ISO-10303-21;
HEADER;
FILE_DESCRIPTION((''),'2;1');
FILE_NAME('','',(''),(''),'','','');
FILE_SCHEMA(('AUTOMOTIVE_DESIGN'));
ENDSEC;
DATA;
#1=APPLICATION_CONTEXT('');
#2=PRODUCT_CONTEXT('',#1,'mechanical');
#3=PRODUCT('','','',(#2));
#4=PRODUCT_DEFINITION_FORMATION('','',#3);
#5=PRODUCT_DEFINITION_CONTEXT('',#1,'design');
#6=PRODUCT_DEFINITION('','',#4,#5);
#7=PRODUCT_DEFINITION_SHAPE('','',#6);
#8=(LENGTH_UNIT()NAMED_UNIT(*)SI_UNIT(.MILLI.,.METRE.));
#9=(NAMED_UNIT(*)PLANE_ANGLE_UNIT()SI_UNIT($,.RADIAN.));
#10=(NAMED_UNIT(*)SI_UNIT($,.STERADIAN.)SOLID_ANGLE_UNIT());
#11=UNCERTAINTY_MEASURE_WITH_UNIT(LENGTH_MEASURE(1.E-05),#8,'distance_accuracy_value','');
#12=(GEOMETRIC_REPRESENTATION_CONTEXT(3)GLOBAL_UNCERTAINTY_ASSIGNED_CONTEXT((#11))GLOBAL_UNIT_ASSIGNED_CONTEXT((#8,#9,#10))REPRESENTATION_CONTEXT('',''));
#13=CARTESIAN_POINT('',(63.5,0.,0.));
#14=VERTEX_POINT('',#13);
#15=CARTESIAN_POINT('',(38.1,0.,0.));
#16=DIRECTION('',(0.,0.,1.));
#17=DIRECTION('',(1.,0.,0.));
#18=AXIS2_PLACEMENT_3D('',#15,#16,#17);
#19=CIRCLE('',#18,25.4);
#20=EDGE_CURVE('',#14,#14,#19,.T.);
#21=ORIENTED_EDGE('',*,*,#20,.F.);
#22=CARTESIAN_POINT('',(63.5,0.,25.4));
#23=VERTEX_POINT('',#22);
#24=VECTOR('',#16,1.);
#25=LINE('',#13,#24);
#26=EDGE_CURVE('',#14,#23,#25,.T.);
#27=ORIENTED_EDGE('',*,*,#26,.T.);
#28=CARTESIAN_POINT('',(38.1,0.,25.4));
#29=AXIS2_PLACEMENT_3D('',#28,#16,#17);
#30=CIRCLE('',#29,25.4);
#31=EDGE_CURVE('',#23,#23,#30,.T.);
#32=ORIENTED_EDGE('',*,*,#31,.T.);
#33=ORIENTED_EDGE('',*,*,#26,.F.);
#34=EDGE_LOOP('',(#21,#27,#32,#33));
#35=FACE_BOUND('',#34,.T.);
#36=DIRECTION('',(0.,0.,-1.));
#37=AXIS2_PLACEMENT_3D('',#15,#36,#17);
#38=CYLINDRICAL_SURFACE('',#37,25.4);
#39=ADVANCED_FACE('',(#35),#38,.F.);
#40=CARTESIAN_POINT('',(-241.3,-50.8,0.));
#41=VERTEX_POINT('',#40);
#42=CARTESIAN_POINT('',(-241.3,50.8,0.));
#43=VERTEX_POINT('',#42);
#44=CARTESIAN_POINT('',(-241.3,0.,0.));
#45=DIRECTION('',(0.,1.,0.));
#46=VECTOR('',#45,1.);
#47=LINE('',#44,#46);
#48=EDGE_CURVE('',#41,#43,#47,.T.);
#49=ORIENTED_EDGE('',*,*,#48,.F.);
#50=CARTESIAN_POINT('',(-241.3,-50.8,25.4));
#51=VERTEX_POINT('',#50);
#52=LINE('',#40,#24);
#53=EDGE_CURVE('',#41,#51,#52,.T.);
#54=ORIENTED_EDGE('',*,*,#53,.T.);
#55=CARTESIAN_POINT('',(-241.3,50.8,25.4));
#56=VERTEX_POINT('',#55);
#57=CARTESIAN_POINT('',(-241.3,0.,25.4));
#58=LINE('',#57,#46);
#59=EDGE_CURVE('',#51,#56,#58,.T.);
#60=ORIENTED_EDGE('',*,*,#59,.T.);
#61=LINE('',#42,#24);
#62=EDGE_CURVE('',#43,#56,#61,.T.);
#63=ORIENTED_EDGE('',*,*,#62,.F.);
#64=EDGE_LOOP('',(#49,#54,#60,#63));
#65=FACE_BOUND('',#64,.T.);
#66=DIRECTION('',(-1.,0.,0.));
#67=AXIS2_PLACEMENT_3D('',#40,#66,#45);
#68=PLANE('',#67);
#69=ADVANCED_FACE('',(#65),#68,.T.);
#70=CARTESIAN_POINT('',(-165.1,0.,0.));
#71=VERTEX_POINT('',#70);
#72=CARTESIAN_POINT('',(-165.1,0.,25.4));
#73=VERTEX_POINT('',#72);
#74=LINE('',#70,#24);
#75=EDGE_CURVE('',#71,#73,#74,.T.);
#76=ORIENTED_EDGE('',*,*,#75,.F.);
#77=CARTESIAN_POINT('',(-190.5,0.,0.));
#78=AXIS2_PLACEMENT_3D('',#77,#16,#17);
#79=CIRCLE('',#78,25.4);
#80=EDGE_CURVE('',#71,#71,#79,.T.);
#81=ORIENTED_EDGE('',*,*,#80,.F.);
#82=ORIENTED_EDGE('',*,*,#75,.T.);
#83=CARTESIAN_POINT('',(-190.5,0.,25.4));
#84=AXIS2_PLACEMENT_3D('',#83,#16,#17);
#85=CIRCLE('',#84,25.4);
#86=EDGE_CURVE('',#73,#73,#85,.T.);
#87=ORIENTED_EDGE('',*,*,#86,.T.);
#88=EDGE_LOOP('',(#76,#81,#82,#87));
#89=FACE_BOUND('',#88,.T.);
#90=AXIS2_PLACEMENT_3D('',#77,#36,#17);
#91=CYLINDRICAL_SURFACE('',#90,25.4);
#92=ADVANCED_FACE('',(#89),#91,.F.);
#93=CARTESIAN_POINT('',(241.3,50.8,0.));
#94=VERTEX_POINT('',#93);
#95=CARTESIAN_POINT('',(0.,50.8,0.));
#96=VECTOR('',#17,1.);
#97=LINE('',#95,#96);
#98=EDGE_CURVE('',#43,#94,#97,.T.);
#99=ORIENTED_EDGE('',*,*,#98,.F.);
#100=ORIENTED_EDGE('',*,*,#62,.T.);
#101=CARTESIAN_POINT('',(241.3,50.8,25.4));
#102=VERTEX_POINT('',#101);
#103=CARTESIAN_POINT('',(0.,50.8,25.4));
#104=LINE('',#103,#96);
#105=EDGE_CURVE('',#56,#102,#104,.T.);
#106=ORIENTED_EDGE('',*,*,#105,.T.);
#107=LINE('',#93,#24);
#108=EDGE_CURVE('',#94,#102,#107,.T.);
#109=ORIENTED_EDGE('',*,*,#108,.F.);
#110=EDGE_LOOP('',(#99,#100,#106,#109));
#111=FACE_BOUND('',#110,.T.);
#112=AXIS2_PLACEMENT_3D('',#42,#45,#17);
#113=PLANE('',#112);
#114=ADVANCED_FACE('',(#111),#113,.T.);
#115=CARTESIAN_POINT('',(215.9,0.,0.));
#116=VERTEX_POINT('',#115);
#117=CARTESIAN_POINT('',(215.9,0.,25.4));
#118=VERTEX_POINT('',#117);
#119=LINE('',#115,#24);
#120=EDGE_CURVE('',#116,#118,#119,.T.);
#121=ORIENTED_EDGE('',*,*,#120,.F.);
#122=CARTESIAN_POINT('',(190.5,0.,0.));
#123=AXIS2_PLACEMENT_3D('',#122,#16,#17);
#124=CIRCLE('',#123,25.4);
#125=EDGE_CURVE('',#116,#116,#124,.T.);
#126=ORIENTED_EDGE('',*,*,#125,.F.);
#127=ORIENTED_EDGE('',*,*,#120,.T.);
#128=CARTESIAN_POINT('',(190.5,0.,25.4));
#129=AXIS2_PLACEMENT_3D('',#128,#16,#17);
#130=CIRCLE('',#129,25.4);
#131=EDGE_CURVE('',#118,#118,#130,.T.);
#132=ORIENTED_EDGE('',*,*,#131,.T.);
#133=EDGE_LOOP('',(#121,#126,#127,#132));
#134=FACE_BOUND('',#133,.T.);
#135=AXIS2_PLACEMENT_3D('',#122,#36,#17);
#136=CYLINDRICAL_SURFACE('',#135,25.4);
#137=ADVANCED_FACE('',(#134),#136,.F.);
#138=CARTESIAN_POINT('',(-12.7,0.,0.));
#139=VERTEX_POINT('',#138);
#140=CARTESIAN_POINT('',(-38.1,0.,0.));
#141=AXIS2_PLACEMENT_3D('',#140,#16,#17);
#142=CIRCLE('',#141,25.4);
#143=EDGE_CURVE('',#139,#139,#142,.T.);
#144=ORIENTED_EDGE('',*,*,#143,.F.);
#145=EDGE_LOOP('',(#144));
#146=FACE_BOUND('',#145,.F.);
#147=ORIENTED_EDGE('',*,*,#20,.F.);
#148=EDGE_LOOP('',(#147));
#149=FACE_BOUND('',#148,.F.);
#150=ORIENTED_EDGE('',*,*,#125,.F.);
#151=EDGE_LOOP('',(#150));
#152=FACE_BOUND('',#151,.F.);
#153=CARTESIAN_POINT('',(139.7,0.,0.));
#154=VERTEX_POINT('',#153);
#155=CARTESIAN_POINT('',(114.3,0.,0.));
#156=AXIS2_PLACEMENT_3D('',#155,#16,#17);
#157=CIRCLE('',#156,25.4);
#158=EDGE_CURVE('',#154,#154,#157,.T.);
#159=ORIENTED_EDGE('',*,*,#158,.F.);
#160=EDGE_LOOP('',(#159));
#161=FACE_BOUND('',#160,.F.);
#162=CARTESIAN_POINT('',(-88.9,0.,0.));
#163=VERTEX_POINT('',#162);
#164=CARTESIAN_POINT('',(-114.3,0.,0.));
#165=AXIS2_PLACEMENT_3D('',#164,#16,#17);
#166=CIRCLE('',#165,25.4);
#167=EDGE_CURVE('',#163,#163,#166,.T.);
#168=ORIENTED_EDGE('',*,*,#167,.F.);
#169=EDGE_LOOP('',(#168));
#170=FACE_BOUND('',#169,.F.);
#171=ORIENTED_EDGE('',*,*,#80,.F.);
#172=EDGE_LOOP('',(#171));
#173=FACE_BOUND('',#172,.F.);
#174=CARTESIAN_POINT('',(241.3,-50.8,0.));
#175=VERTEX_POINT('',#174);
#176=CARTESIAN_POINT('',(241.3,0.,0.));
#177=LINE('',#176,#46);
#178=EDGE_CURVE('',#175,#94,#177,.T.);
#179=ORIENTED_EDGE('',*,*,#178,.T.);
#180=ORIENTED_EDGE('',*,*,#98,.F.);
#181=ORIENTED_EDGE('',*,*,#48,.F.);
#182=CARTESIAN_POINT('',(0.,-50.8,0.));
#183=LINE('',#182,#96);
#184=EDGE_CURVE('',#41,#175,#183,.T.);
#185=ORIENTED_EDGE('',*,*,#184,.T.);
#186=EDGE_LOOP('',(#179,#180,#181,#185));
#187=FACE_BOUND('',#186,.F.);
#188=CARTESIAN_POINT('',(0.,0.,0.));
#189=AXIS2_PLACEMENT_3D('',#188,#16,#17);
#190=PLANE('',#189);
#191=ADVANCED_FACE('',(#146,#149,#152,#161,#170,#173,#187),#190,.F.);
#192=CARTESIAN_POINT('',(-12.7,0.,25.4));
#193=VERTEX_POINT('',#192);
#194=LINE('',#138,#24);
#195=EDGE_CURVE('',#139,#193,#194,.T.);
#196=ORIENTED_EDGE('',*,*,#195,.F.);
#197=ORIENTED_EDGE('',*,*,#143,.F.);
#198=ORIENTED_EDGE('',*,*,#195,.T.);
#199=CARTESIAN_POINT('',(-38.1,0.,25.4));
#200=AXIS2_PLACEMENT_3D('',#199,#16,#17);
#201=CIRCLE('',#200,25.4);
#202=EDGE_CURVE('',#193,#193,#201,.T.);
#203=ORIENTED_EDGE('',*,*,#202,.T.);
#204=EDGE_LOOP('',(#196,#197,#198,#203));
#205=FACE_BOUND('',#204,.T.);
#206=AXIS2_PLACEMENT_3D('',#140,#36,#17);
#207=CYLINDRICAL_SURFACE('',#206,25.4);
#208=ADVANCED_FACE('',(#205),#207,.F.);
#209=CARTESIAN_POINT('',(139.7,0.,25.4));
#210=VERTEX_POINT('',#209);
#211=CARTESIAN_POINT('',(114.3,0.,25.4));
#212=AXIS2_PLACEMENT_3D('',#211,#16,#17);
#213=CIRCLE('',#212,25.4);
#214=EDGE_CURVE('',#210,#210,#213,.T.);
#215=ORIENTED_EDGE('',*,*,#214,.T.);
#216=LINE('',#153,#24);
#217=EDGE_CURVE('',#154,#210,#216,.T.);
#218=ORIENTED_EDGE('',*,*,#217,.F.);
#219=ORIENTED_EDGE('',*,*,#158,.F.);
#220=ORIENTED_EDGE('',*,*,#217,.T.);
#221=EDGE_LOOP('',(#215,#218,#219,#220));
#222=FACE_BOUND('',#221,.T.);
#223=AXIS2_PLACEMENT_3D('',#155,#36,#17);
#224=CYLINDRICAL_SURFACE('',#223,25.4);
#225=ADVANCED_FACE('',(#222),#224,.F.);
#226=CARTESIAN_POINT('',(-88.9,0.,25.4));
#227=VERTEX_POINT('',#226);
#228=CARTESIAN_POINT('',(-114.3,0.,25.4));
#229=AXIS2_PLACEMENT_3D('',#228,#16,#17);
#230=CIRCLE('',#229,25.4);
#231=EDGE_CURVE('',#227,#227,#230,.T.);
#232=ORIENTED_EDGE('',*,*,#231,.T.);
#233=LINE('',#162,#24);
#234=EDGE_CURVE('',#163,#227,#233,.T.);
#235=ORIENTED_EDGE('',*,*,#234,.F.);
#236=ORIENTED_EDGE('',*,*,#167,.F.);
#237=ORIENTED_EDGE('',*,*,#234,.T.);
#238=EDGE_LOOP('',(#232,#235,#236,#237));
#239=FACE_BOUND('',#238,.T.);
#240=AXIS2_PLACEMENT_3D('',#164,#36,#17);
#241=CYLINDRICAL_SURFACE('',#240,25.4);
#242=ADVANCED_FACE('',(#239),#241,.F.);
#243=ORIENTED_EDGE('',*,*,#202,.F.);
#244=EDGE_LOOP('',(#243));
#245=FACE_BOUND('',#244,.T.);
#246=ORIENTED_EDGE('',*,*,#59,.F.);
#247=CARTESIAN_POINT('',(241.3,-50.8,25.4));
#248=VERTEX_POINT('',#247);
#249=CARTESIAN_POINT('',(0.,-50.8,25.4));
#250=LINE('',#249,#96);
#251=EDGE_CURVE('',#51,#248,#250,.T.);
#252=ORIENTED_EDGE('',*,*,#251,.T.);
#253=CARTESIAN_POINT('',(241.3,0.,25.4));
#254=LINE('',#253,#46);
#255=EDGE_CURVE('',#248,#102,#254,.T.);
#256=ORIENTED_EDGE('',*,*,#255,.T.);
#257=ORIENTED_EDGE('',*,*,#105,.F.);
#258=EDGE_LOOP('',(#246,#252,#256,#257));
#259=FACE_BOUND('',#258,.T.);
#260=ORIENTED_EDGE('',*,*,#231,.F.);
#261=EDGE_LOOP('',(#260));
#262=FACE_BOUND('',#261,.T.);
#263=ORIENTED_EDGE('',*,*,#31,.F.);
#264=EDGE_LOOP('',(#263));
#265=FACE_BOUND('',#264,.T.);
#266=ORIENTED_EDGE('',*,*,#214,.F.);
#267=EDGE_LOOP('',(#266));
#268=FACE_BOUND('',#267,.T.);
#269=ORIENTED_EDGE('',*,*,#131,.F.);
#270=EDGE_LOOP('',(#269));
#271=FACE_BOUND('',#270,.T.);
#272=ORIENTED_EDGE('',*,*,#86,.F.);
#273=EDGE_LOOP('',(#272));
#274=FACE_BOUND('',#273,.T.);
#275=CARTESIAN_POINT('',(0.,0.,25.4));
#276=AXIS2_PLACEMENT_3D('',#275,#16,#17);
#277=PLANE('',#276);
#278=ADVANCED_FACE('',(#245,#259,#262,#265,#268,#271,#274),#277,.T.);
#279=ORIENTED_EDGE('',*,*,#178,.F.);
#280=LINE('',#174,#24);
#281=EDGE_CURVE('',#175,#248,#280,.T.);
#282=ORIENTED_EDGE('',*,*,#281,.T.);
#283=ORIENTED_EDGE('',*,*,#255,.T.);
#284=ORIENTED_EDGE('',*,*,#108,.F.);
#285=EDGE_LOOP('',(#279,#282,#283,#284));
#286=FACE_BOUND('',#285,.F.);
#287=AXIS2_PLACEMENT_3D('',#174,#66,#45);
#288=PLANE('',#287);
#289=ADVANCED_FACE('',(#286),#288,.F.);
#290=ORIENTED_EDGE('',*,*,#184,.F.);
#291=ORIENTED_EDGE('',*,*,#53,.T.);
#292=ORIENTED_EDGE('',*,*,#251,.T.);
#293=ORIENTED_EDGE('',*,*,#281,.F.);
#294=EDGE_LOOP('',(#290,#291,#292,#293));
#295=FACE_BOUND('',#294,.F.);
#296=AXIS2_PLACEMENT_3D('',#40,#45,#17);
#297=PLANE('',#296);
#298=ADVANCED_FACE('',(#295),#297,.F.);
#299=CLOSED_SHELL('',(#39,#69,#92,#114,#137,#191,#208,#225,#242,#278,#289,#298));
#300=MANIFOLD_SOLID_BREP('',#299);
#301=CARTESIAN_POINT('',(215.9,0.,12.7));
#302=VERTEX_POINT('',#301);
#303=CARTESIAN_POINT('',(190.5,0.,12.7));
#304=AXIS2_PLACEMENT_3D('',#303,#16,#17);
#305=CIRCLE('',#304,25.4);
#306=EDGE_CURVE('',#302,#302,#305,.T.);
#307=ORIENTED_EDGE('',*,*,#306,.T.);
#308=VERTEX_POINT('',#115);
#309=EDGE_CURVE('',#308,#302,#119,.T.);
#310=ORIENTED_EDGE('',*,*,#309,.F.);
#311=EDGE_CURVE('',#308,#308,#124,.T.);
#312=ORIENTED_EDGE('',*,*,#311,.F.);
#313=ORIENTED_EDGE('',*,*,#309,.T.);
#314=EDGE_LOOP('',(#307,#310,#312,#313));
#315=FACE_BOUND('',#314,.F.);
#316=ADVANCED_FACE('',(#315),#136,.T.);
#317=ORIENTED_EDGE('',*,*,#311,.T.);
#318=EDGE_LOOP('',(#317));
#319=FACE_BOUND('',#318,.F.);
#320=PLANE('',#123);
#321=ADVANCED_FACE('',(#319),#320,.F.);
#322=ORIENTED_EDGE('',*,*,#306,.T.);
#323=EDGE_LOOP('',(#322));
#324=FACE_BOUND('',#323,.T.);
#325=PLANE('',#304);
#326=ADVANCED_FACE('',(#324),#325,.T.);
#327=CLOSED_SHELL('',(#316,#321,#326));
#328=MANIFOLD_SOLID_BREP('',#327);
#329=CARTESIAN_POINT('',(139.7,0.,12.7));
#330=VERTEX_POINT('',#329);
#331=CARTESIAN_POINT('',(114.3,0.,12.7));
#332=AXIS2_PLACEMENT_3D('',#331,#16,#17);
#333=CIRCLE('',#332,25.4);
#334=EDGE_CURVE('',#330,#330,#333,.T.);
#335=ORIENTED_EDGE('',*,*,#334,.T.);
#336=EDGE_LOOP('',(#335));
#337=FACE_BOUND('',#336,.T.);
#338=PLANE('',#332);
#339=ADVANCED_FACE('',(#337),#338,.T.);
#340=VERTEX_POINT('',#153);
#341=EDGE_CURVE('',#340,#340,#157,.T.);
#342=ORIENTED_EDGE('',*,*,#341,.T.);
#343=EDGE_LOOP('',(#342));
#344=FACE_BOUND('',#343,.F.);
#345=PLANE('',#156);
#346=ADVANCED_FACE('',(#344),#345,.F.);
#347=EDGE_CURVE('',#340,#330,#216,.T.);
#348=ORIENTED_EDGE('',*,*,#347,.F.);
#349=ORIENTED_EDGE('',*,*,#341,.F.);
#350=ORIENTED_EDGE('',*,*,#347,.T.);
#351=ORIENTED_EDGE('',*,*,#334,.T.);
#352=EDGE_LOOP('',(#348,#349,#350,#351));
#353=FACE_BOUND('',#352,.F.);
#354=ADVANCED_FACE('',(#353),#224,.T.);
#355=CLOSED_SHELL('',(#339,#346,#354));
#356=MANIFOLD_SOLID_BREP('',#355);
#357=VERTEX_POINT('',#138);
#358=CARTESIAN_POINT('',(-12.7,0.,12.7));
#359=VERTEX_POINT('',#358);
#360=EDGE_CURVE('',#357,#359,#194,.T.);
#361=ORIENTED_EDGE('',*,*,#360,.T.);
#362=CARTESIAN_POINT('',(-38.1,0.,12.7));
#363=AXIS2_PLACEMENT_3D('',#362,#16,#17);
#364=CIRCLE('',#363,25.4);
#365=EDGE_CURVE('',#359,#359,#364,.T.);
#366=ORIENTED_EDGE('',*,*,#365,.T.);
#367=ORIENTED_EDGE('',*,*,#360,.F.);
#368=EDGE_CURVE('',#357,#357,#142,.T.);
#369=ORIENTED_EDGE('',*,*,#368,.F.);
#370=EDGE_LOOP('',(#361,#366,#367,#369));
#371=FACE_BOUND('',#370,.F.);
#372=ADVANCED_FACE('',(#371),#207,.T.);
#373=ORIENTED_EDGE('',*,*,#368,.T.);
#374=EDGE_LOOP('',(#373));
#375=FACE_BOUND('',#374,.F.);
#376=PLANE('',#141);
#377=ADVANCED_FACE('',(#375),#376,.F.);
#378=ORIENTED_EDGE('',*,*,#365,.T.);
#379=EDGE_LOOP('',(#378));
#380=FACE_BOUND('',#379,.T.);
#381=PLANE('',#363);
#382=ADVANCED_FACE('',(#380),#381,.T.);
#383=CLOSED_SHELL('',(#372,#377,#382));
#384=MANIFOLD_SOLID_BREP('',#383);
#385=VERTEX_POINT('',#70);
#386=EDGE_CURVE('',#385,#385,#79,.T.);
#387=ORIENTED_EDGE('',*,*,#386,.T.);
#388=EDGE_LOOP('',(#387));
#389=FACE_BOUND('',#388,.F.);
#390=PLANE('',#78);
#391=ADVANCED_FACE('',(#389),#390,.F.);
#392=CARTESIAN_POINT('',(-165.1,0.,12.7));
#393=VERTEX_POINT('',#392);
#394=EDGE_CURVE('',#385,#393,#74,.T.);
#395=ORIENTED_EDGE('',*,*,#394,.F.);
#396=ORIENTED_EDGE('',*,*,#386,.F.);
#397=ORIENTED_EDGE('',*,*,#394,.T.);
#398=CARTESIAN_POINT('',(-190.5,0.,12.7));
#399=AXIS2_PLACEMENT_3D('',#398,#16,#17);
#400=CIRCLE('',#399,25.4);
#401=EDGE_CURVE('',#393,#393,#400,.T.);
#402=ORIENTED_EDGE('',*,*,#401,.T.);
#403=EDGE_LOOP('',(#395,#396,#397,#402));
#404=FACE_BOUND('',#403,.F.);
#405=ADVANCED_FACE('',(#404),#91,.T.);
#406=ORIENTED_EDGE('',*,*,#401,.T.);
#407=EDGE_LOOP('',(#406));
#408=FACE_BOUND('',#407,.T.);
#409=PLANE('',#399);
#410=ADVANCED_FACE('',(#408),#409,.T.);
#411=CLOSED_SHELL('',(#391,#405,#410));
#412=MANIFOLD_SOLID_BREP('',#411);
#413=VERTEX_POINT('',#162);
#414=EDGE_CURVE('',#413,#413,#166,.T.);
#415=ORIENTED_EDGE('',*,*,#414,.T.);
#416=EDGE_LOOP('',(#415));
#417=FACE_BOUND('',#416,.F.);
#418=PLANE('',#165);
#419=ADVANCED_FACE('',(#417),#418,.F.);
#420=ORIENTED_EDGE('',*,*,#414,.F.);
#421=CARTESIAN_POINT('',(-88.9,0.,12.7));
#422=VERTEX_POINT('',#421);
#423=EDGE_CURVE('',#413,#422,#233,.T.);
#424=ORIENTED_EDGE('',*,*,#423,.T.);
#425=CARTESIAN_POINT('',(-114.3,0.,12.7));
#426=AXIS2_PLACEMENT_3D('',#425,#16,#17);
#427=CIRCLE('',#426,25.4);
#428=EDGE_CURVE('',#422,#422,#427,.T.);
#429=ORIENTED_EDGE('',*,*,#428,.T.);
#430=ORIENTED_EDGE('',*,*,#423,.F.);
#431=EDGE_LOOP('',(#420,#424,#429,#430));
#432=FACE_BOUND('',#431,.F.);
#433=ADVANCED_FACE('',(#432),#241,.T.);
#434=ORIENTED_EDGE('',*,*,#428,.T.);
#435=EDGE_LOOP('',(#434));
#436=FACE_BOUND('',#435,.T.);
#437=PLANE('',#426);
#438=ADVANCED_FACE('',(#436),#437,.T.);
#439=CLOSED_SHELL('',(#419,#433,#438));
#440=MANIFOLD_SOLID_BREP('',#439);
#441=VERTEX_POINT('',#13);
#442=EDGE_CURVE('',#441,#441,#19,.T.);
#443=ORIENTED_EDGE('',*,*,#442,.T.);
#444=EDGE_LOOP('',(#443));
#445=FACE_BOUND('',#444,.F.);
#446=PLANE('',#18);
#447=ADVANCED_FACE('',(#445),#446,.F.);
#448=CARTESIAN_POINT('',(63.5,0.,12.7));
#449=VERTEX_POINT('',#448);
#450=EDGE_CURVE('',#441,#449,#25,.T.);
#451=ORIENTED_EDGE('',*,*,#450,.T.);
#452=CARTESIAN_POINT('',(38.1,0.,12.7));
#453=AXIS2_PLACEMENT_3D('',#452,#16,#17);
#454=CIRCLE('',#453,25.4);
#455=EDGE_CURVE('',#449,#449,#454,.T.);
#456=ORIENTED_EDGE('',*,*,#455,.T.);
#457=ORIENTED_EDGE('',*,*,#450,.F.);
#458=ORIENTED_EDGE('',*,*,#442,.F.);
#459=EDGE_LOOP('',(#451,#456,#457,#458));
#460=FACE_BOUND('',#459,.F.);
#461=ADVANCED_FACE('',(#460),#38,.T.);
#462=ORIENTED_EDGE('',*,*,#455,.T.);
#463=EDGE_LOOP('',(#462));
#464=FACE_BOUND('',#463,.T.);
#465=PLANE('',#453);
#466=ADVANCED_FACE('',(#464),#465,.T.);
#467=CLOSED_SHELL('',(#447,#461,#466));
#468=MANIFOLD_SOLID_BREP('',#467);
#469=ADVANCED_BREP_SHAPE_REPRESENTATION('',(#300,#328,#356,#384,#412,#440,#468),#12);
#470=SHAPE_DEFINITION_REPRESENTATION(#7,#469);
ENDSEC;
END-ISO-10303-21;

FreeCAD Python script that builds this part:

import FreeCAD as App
import Part
import Sketcher
Q = App.Units.Quantity


def add_polygon(sketch, points):
    """Adds a closed chain of lines whose ends are joined by coincident constraints."""
    first, n = sketch.GeometryCount, len(points)
    for a, b in zip(points, points[1:] + points[:1]):
        sketch.addGeometry(Part.LineSegment(App.Vector(*a, 0), App.Vector(*b, 0)), False)
    for i in range(n):
        sketch.addConstraint(Sketcher.Constraint("Coincident", first + i, 2, first + (i + 1) % n, 1))

doc = App.newDocument("Part")
body = doc.addObject("PartDesign::Body", "Body")
body.AllowCompound = True

sketch1 = body.newObject("Sketcher::SketchObject", "Sketch")
sketch1.AttachmentSupport = (doc.getObject("XY_Plane"), [""])
sketch1.MapMode = "FlatFace"
sketch1.addGeometry([
    Part.Circle(App.Vector(-190, 0, 0), App.Vector(0, 0, 1), 25),
    Part.Circle(App.Vector(-114, 0, 0), App.Vector(0, 0, 1), 25),
    Part.Circle(App.Vector(-38, 0, 0), App.Vector(0, 0, 1), 25),
    Part.Circle(App.Vector(38, 0, 0), App.Vector(0, 0, 1), 25),
    Part.Circle(App.Vector(114, 0, 0), App.Vector(0, 0, 1), 25),
    Part.Circle(App.Vector(190, 0, 0), App.Vector(0, 0, 1), 25),
], False)
sketch1.addConstraint([
    Sketcher.Constraint("Equal", 0, 1),
    Sketcher.Constraint("Equal", 1, 2),
    Sketcher.Constraint("Equal", 2, 3),
    Sketcher.Constraint("Equal", 3, 4),
    Sketcher.Constraint("Equal", 4, 5),
    Sketcher.Constraint("Symmetric", 2, 3, 3, 3, -1, 1),
    Sketcher.Constraint("Symmetric", 1, 3, 4, 3, -1, 1),
    Sketcher.Constraint("Symmetric", 0, 3, 5, 3, -1, 1),
    Sketcher.Constraint("PointOnObject", 0, 3, -1),
    Sketcher.Constraint("PointOnObject", 1, 3, -1),
    Sketcher.Constraint("PointOnObject", 2, 3, -1),
    Sketcher.Constraint("Diameter", 0, Q("2 in")),
    Sketcher.Constraint("DistanceX", 0, 3, 1, 3, Q("3 in")),
    Sketcher.Constraint("DistanceX", 1, 3, 2, 3, Q("3 in")),
    Sketcher.Constraint("DistanceX", 2, 3, 3, 3, Q("3 in")),
])
pad1 = body.newObject("PartDesign::Pad", "Pad")
pad1.Profile = sketch1
pad1.Length = Q("0.5 in")
body2 = doc.addObject("PartDesign::Body", "Body001")

sketch2 = body2.newObject("Sketcher::SketchObject", "Sketch001")
sketch2.AttachmentSupport = (doc.getObject("XY_Plane001"), [""])
sketch2.MapMode = "FlatFace"
add_polygon(sketch2, [(-241, 51), (-241, -51), (241, -51), (241, 51)])
sketch2.addGeometry(Part.Circle(App.Vector(-190, 0, 0), App.Vector(0, 0, 1), 25), False)
sketch2.addGeometry(Part.Circle(App.Vector(-114, 0, 0), App.Vector(0, 0, 1), 25), False)
sketch2.addGeometry(Part.Circle(App.Vector(-38, 0, 0), App.Vector(0, 0, 1), 25), False)
sketch2.addGeometry(Part.Circle(App.Vector(38, 0, 0), App.Vector(0, 0, 1), 25), False)
sketch2.addGeometry(Part.Circle(App.Vector(114, 0, 0), App.Vector(0, 0, 1), 25), False)
sketch2.addGeometry(Part.Circle(App.Vector(190, 0, 0), App.Vector(0, 0, 1), 25), False)
sketch2.addConstraint([
    Sketcher.Constraint("Vertical", 0),
    Sketcher.Constraint("Horizontal", 1),
    Sketcher.Constraint("Vertical", 2),
    Sketcher.Constraint("Horizontal", 3),
    Sketcher.Constraint("Equal", 4, 5),
    Sketcher.Constraint("Equal", 5, 6),
    Sketcher.Constraint("Equal", 6, 7),
    Sketcher.Constraint("Equal", 7, 8),
    Sketcher.Constraint("Equal", 8, 9),
    Sketcher.Constraint("Symmetric", 6, 3, 7, 3, -1, 1),
    Sketcher.Constraint("Symmetric", 5, 3, 8, 3, -1, 1),
    Sketcher.Constraint("Symmetric", 4, 3, 9, 3, -1, 1),
    Sketcher.Constraint("Symmetric", 0, 2, 2, 2, -1, 1),
    Sketcher.Constraint("PointOnObject", 4, 3, -1),
    Sketcher.Constraint("PointOnObject", 5, 3, -1),
    Sketcher.Constraint("PointOnObject", 6, 3, -1),
    Sketcher.Constraint("Diameter", 4, Q("2 in")),
    Sketcher.Constraint("DistanceX", 1, 1, 1, 2, Q("19 in")),
    Sketcher.Constraint("DistanceY", 0, 2, 0, 1, Q("4 in")),
    Sketcher.Constraint("DistanceX", 4, 3, 5, 3, Q("3 in")),
    Sketcher.Constraint("DistanceX", 5, 3, 6, 3, Q("3 in")),
    Sketcher.Constraint("DistanceX", 6, 3, 7, 3, Q("3 in")),
])
pad2 = body2.newObject("PartDesign::Pad", "Pad001")
pad2.Profile = sketch2
pad2.Length = Q("1 in")

doc.recompute()
